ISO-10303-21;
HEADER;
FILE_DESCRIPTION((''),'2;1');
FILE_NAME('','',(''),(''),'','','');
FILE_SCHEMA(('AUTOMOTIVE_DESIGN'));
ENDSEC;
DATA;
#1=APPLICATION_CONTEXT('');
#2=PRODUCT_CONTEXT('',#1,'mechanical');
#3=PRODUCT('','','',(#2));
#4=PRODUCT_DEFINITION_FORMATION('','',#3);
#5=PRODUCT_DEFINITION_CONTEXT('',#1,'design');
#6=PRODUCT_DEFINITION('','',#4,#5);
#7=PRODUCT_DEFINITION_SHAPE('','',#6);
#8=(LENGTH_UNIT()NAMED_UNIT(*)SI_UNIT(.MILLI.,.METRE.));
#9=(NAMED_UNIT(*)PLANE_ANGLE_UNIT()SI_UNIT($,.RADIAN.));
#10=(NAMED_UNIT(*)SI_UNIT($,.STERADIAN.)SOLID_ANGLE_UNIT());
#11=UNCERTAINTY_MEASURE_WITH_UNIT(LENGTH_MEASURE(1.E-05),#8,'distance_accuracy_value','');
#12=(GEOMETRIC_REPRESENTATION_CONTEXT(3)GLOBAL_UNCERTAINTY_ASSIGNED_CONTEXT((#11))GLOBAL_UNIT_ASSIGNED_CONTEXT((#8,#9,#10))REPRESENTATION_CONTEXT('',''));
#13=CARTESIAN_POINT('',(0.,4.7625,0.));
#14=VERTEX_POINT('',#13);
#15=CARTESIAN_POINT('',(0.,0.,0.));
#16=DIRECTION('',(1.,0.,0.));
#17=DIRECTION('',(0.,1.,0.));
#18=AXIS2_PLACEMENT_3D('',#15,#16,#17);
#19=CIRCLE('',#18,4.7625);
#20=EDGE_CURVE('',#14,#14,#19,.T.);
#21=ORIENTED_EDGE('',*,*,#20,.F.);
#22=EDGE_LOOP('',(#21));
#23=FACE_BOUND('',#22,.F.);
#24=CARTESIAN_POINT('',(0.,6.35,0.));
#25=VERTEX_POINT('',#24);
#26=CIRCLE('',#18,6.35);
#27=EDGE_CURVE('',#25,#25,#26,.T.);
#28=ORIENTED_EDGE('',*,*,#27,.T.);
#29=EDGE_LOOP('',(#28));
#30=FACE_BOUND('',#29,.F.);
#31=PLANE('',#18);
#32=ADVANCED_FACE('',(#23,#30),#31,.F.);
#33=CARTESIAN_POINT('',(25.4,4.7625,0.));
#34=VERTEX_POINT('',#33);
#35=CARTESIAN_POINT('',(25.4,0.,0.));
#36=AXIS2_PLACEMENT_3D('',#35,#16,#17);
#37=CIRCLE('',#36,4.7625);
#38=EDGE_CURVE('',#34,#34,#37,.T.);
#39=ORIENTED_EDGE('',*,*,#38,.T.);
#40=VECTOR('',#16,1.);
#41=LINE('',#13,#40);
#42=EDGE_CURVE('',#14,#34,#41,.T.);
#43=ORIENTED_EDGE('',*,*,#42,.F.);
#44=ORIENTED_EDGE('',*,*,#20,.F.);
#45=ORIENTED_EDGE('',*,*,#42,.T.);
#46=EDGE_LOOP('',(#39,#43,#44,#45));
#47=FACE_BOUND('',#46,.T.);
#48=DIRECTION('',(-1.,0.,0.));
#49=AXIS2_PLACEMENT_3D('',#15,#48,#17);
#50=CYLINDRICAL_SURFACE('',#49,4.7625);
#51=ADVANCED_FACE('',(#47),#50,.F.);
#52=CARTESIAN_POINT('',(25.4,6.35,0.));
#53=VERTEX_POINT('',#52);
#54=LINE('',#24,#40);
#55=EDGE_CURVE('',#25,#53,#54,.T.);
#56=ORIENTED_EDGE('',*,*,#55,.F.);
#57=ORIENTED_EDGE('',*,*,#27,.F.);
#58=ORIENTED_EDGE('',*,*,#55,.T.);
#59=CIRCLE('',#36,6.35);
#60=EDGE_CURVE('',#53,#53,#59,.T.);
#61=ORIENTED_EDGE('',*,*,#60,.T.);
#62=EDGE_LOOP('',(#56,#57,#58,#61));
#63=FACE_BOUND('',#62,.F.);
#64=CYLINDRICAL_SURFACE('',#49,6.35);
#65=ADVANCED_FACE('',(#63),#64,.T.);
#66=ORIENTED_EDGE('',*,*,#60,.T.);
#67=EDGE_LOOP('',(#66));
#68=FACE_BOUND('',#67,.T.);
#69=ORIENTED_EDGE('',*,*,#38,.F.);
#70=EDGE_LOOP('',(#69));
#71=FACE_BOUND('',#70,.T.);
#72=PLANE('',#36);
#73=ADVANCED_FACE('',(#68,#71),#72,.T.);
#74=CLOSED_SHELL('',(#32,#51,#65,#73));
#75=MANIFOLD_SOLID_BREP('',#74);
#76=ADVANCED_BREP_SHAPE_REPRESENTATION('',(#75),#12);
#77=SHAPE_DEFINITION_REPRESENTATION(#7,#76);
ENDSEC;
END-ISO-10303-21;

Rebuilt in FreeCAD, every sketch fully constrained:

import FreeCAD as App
import Part
import Sketcher
Q = App.Units.Quantity

doc = App.newDocument("Part")
params = doc.addObject("Spreadsheet::Sheet", "Params")
for row, (alias, value) in enumerate([
    ("sketch1_diameter", "0.5 in"),
    ("sketch1_diameter2", "0.375 in"),
    ("pad1_length", "1 in"),
], start=1):
    params.set(f"A{row}", alias)
    params.set(f"B{row}", "=" + value)
    params.setAlias(f"B{row}", alias)

body = doc.addObject("PartDesign::Body", "Body")

# Sketch on YZ plane
sketch1 = body.newObject("Sketcher::SketchObject", "Sketch")
sketch1.AttachmentSupport = (doc.getObject("YZ_Plane"), [""])
sketch1.MapMode = "FlatFace"
sketch1.addGeometry([
    Part.Circle(App.Vector(0, 0, 0), App.Vector(0, 0, 1), 6.3),
    Part.Circle(App.Vector(0, 0, 0), App.Vector(0, 0, 1), 4.8),
], False)
sketch1.addConstraint([
    Sketcher.Constraint("Coincident", 0, 3, -1, 1),
    Sketcher.Constraint("Coincident", 1, 3, -1, 1),
    Sketcher.Constraint("Diameter", 0, Q("0.5 in")),
    Sketcher.Constraint("Diameter", 1, Q("0.375 in")),
])
sketch1.setExpression("Constraints[2]", "Params.sketch1_diameter")
sketch1.setExpression("Constraints[3]", "Params.sketch1_diameter2")
pad1 = body.newObject("PartDesign::Pad", "Pad")
pad1.Profile = sketch1
pad1.setExpression("Length", "Params.pad1_length")

doc.recompute()
